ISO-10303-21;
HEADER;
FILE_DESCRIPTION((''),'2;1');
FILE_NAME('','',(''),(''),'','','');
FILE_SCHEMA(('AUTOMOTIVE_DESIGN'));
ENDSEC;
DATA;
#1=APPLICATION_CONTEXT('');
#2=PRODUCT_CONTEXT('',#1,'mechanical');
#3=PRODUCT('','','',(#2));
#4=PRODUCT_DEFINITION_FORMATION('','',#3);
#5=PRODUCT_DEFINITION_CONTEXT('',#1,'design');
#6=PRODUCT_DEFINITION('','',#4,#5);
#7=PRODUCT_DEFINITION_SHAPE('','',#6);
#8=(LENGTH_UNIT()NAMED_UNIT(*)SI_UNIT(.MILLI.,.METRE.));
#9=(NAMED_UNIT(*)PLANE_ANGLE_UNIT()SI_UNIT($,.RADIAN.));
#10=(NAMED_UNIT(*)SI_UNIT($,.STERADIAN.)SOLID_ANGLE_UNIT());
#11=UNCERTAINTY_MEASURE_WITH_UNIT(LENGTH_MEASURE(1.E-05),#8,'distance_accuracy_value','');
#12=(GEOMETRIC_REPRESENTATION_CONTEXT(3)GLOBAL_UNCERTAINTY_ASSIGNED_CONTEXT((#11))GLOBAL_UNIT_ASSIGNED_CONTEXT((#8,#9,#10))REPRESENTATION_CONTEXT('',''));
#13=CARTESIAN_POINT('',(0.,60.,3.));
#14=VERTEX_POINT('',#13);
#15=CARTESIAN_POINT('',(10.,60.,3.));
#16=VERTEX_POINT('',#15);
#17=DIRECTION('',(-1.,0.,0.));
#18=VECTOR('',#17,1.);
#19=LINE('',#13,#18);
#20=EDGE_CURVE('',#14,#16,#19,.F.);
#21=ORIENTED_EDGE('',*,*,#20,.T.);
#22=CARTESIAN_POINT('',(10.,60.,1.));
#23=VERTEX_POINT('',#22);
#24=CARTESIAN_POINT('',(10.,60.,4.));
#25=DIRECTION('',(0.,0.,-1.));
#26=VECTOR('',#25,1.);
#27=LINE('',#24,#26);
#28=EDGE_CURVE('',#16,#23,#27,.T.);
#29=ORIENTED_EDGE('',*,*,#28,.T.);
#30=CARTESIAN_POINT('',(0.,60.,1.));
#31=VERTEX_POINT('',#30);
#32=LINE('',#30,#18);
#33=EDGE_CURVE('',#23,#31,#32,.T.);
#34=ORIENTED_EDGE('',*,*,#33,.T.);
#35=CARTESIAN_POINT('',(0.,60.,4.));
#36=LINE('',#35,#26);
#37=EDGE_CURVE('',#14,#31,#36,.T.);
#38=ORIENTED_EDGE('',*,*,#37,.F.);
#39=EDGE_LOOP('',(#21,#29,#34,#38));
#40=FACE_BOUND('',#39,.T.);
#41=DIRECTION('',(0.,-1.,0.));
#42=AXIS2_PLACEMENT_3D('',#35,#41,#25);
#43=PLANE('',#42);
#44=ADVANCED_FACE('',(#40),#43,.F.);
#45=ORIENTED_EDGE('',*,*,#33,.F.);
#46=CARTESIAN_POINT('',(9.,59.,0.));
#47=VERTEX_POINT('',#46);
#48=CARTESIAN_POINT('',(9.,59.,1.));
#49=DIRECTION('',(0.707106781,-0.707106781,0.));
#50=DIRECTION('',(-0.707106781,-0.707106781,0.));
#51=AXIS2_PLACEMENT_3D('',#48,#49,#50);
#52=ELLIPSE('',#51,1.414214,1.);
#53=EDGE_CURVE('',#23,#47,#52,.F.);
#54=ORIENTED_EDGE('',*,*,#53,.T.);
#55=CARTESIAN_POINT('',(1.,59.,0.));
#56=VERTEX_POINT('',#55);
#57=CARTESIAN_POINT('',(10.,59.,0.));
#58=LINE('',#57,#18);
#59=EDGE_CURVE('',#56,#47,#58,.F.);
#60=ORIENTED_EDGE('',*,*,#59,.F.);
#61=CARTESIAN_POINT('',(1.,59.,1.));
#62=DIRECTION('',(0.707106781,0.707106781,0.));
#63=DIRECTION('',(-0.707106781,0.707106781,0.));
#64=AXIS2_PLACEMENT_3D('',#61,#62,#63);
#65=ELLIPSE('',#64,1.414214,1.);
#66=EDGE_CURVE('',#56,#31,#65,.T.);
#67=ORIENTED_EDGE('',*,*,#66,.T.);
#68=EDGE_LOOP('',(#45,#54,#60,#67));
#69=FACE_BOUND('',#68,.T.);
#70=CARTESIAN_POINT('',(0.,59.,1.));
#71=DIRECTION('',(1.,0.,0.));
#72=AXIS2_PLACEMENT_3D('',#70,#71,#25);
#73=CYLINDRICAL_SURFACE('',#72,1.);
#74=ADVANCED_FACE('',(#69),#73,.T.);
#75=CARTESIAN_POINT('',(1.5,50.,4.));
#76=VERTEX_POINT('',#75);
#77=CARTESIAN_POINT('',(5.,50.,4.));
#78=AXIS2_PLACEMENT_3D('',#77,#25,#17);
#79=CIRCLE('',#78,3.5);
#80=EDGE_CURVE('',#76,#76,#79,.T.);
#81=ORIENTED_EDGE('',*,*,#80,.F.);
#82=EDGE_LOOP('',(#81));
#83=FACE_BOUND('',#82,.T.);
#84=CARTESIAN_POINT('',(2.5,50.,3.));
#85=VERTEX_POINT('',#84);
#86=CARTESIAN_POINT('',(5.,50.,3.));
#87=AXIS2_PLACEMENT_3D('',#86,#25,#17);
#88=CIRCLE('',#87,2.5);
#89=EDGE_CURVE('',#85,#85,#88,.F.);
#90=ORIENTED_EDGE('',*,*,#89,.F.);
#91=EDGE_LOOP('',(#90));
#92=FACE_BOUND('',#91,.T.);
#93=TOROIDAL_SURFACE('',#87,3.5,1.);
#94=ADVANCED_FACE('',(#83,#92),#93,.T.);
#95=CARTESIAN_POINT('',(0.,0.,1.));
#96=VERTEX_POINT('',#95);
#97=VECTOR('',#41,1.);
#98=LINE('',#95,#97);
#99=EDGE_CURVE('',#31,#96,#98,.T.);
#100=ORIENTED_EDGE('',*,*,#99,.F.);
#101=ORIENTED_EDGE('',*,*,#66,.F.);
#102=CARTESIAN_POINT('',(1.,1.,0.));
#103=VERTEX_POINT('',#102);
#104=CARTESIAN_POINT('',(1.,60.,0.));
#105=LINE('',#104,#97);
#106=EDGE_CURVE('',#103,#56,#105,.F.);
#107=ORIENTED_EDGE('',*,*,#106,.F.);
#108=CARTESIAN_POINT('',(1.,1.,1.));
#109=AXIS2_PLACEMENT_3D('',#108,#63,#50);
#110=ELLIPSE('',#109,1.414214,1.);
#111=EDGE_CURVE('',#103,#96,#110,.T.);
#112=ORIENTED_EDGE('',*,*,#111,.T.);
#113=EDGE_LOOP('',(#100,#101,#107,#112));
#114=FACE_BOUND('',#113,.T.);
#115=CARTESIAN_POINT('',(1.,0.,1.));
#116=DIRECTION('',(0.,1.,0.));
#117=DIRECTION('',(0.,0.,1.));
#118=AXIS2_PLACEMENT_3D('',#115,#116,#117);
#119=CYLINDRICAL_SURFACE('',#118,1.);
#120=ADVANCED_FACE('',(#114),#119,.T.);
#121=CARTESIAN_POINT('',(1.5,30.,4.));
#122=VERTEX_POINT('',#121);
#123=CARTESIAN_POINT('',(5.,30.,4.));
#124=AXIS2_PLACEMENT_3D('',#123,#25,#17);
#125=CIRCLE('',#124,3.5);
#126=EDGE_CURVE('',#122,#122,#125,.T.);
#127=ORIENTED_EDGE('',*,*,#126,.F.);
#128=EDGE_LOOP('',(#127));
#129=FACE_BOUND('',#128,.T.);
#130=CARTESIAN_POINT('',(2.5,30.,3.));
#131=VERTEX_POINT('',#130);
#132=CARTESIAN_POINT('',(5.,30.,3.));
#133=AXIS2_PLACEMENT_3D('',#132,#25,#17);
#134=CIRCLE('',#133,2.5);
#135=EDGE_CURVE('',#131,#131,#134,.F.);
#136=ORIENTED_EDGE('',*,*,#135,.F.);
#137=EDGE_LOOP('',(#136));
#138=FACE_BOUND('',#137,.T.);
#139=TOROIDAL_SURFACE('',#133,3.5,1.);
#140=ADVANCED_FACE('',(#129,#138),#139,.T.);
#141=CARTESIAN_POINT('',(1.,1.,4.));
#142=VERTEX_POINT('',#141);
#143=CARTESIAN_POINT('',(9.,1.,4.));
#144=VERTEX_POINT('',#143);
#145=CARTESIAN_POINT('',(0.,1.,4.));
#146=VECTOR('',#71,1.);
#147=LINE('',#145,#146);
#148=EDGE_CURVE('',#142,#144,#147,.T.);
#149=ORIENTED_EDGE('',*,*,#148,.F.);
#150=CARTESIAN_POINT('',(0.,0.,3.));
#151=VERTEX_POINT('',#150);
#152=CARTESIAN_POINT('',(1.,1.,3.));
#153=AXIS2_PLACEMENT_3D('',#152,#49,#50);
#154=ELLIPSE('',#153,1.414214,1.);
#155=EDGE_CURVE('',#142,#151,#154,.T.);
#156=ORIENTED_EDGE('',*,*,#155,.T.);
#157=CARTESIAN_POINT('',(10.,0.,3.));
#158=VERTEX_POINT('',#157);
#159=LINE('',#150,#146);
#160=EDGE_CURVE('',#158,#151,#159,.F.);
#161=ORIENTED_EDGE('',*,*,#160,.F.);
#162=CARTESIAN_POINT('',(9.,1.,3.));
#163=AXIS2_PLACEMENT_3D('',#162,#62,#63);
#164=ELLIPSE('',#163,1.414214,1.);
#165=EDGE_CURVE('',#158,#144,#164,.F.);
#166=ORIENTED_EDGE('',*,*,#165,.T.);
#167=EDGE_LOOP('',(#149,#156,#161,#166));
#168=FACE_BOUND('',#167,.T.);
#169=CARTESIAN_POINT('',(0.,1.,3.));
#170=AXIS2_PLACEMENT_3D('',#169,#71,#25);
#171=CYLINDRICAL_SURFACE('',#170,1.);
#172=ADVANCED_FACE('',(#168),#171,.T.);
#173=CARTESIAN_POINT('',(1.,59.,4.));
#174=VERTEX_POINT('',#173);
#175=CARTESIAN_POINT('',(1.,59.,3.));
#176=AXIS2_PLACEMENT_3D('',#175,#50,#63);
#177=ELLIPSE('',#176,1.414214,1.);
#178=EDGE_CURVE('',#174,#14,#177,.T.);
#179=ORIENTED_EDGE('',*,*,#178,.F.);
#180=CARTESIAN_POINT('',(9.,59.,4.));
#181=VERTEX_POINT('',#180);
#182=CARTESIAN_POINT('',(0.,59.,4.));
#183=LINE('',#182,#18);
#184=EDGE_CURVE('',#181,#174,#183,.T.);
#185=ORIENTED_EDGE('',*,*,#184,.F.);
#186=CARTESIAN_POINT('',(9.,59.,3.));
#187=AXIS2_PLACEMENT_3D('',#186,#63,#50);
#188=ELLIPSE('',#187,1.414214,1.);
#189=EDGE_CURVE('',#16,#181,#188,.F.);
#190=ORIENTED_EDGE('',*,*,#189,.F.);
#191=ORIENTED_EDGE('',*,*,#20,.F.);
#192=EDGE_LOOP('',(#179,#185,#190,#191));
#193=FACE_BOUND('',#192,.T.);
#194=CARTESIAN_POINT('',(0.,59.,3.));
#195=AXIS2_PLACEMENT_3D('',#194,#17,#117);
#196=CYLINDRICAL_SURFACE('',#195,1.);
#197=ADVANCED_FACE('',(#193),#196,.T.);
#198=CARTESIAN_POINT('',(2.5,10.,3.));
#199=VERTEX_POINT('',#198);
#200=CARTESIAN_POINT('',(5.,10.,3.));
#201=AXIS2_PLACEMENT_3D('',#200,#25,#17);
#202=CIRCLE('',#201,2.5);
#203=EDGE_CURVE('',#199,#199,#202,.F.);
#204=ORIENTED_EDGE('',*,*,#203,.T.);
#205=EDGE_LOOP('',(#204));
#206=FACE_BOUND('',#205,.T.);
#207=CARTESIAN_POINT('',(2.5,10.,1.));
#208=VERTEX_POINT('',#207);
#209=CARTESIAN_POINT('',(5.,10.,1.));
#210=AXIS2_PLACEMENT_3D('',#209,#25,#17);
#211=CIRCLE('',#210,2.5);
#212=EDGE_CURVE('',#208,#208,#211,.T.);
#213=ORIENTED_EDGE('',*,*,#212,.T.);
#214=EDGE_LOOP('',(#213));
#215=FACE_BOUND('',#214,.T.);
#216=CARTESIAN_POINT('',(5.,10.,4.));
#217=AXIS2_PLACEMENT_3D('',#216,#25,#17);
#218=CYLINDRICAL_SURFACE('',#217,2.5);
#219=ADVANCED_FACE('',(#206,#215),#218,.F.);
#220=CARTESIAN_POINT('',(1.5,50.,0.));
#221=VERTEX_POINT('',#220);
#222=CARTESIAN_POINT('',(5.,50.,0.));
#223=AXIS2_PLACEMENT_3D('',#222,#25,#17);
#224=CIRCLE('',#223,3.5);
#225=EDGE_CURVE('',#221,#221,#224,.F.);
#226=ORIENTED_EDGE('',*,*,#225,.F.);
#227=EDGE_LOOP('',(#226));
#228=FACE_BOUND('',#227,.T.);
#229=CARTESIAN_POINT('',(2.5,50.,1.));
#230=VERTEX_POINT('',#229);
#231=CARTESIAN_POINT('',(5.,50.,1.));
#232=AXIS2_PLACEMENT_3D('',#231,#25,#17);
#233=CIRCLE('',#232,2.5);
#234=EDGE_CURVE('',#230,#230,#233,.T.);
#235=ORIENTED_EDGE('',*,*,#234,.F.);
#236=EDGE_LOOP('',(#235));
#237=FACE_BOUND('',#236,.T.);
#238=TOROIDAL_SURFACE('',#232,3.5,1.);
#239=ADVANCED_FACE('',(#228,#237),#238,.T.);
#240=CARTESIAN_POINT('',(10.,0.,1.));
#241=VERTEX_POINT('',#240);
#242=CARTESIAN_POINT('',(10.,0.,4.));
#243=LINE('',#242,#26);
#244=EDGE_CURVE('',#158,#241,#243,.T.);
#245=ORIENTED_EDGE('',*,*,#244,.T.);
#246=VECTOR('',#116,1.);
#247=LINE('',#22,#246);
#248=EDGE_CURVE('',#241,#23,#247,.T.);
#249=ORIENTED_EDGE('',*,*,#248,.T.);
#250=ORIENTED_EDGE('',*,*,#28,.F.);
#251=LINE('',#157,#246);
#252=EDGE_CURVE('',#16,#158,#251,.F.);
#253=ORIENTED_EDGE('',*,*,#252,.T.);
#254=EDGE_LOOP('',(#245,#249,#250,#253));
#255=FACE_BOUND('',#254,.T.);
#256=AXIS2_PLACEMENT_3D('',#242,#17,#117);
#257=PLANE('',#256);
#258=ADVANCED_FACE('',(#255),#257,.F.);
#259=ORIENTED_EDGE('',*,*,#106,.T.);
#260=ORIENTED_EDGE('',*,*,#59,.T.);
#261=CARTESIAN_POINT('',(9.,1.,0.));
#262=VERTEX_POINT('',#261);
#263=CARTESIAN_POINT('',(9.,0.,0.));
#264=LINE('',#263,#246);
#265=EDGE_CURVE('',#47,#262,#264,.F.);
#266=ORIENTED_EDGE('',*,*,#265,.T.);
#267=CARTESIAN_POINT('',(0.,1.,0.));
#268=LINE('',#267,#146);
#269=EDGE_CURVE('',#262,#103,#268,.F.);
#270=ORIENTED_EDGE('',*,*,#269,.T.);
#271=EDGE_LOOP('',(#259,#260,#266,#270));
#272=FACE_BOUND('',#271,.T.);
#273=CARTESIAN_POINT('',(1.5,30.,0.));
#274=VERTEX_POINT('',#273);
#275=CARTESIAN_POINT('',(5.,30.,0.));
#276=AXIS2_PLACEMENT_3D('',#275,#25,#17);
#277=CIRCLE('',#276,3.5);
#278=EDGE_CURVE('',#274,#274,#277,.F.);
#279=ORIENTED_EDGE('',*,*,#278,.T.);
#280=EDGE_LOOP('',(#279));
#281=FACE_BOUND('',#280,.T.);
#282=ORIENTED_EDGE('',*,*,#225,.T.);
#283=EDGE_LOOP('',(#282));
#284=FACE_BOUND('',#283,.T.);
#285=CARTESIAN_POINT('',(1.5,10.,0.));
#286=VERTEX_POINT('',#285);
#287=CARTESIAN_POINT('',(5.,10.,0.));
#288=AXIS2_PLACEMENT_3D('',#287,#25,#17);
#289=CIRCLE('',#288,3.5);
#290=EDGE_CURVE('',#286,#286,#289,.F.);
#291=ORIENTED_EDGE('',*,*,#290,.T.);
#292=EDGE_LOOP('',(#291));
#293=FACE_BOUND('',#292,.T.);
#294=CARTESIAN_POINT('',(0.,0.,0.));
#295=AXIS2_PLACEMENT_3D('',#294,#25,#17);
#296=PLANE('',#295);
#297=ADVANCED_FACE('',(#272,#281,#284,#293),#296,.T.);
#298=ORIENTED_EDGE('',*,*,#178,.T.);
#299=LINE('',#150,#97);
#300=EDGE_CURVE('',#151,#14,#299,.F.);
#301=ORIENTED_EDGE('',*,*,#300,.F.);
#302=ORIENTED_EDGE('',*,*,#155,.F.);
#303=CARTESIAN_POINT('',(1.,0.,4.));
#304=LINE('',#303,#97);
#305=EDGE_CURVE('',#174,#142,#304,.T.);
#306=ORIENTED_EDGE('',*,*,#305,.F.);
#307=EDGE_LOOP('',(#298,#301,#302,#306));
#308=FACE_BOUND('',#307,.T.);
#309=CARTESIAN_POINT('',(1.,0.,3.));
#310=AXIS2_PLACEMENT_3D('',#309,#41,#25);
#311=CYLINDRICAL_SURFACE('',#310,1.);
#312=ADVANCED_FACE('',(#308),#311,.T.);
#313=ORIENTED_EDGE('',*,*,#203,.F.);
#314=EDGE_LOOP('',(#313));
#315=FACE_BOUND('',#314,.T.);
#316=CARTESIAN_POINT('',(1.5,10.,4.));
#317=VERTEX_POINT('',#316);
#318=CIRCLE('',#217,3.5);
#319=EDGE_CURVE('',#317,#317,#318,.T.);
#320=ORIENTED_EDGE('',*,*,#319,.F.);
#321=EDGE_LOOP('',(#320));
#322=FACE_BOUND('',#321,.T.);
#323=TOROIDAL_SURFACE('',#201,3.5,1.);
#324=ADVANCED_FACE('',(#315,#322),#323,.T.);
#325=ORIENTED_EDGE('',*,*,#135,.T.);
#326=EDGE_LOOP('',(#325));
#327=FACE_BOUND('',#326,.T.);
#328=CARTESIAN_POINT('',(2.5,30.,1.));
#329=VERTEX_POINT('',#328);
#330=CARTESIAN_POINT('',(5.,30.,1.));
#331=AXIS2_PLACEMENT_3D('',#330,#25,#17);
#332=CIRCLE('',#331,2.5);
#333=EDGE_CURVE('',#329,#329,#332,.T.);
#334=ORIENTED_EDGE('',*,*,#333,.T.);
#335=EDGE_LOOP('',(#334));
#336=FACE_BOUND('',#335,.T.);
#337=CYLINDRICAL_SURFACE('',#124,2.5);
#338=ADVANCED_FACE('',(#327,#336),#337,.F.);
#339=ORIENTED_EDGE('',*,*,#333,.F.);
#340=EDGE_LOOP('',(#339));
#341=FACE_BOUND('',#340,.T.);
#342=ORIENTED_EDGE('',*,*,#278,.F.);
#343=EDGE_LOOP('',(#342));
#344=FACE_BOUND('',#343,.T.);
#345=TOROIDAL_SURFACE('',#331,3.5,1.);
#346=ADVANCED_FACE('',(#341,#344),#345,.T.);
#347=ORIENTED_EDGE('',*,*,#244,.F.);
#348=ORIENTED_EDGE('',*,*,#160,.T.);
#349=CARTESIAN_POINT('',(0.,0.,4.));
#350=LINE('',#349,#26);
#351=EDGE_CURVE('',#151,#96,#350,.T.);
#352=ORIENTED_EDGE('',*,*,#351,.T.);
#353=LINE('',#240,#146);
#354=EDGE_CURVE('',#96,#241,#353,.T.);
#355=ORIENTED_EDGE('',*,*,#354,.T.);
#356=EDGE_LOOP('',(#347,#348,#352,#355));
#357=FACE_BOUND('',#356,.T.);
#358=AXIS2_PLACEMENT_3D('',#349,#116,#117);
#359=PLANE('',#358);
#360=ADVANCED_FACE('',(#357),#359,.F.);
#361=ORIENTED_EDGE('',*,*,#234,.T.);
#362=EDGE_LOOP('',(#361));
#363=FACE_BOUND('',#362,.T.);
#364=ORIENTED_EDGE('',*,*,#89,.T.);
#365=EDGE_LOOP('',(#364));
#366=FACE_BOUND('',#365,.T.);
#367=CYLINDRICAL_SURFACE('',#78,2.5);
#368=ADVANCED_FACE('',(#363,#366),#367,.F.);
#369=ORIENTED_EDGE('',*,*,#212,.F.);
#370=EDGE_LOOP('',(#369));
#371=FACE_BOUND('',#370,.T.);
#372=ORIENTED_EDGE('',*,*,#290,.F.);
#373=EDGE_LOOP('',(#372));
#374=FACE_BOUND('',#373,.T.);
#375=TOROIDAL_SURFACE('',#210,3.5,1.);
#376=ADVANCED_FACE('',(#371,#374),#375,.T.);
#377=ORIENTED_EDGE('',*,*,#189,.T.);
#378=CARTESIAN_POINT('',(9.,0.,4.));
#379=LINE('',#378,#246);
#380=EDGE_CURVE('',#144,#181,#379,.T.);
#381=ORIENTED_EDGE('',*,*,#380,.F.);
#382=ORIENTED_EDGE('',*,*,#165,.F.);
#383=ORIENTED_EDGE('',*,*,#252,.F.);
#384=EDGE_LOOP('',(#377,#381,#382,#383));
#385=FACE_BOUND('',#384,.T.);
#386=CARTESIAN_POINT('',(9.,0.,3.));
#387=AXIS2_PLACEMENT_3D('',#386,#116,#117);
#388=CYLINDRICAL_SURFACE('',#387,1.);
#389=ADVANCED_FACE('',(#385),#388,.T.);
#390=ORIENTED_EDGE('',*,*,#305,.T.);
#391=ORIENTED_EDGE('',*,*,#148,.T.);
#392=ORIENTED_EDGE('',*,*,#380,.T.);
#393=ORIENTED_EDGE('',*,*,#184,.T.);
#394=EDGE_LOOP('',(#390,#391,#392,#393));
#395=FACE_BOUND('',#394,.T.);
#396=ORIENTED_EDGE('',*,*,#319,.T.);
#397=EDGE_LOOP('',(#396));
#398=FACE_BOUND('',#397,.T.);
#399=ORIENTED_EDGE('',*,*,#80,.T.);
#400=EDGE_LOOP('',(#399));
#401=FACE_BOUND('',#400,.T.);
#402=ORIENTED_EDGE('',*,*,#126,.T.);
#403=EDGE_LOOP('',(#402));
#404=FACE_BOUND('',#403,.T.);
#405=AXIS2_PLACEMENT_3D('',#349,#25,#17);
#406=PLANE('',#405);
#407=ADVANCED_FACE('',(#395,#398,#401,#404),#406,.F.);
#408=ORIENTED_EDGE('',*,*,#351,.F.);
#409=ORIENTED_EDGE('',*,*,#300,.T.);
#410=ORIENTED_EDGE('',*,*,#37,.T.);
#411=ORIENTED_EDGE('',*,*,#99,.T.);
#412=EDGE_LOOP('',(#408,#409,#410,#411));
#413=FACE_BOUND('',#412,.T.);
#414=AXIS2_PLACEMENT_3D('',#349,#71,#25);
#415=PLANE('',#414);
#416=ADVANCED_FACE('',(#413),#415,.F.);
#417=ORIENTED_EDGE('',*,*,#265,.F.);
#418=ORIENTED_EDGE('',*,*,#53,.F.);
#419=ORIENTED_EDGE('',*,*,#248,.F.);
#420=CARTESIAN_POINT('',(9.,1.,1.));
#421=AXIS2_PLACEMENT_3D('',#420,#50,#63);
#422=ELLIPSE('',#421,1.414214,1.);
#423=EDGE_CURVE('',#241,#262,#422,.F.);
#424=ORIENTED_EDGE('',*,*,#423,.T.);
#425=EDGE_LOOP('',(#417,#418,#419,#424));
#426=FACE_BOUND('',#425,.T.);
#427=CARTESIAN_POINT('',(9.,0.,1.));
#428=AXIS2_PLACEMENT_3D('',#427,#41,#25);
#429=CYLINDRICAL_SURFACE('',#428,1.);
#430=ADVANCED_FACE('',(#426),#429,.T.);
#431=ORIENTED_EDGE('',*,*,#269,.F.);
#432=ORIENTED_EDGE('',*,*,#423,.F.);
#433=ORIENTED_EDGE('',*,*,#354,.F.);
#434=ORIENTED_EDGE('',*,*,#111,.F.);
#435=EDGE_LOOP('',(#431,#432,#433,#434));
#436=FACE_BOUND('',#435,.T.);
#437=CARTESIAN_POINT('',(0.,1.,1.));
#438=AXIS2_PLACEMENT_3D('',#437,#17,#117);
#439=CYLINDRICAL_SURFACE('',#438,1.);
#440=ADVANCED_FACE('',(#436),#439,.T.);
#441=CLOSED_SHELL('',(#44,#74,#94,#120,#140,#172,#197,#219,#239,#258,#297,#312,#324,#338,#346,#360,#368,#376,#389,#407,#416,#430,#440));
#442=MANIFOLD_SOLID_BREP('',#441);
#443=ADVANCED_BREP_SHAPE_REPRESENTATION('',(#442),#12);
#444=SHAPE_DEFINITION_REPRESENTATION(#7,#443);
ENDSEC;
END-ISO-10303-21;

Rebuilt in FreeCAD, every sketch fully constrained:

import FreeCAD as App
import Part
import Sketcher

V = App.Vector


def edges_at(feature, points):
    """Names of the edges that pass closest to the given points."""
    edges = feature.Shape.Edges
    near = lambda p: min(range(len(edges)), key=lambda i: edges[i].distToShape(Part.Vertex(*p))[0])
    return sorted({f"Edge{near(p) + 1}" for p in points})

doc = App.newDocument("Part")
params = doc.addObject("Spreadsheet::Sheet", "Params")
for row, (alias, value) in enumerate([
    ("sketch1_diameter", "5 mm"),
    ("sketch1_width", "10 mm"),
    ("sketch1_height", "60 mm"),
    ("pad1_length", "4 mm"),
    ("fillet_radius", "1 mm"),
    ("fillet2_radius", "1 mm"),
], start=1):
    params.set(f"A{row}", alias)
    params.set(f"B{row}", "=" + value)
    params.setAlias(f"B{row}", alias)

body = doc.addObject("PartDesign::Body", "Body")

sketch1 = body.newObject("Sketcher::SketchObject", "Sketch")
sketch1.AttachmentSupport = (doc.getObject("XY_Plane"), [""])
sketch1.MapMode = "FlatFace"
sketch1.addGeometry(Part.LineSegment(V(0, 60, 0), V(0, 0, 0)), False)
sketch1.addGeometry(Part.LineSegment(V(0, 0, 0), V(10, 0, 0)), False)
sketch1.addGeometry(Part.LineSegment(V(10, 0, 0), V(10, 60, 0)), False)
sketch1.addGeometry(Part.LineSegment(V(10, 60, 0), V(0, 60, 0)), False)
sketch1.addGeometry(Part.Circle(V(5, 10, 0), V(0, 0, 1), 2.5), False)
sketch1.addGeometry(Part.Circle(V(5, 30, 0), V(0, 0, 1), 2.5), False)
sketch1.addGeometry(Part.Circle(V(5, 50, 0), V(0, 0, 1), 2.5), False)
sketch1.addConstraint(Sketcher.Constraint("Coincident", 0, 2, 1, 1))
sketch1.addConstraint(Sketcher.Constraint("Coincident", 1, 2, 2, 1))
sketch1.addConstraint(Sketcher.Constraint("Coincident", 2, 2, 3, 1))
sketch1.addConstraint(Sketcher.Constraint("Coincident", 3, 2, 0, 1))
sketch1.addConstraint(Sketcher.Constraint("Vertical", 0))
sketch1.addConstraint(Sketcher.Constraint("Horizontal", 1))
sketch1.addConstraint(Sketcher.Constraint("Vertical", 2))
sketch1.addConstraint(Sketcher.Constraint("Horizontal", 3))
sketch1.addConstraint(Sketcher.Constraint("Coincident", 0, 2, -1, 1))
sketch1.addConstraint(Sketcher.Constraint("Equal", 4, 5))
sketch1.addConstraint(Sketcher.Constraint("Equal", 5, 6))
sketch1.addConstraint(Sketcher.Constraint("Vertical", 4, 3, 5, 3))
sketch1.addConstraint(Sketcher.Constraint("Vertical", 5, 3, 6, 3))
sketch1.addConstraint(Sketcher.Constraint("Diameter", 4, 5.0))
sketch1.addConstraint(Sketcher.Constraint("DistanceX", 1, 1, 1, 2, 10.0))
sketch1.addConstraint(Sketcher.Constraint("DistanceY", 0, 2, 0, 1, 60.0))
sketch1.addConstraint(Sketcher.Constraint("DistanceX", -1, 1, 4, 3, 5.0))
sketch1.addConstraint(Sketcher.Constraint("DistanceY", -1, 1, 4, 3, 10.0))
sketch1.addConstraint(Sketcher.Constraint("DistanceY", -1, 1, 5, 3, 30.0))
sketch1.addConstraint(Sketcher.Constraint("DistanceY", -1, 1, 6, 3, 50.0))
sketch1.setExpression("Constraints[13]", "Params.sketch1_diameter")
sketch1.setExpression("Constraints[14]", "Params.sketch1_width")
sketch1.setExpression("Constraints[15]", "Params.sketch1_height")
pad1 = body.newObject("PartDesign::Pad", "Pad")
pad1.Profile = sketch1
pad1.setExpression("Length", "Params.pad1_length")
doc.recompute()

fillet = body.newObject("PartDesign::Fillet", "Fillet")
fillet.Base = (pad1, edges_at(pad1, [
    (2.5, 30, 4),
    (10, 30, 4),
    (2.5, 50, 0),
    (2.5, 50, 4),
    (5, 60, 4),
    (2.5, 10, 0),
    (2.5, 10, 4),
    (0, 30, 4),
    (5, 60, 0),
    (10, 30, 0),
    (5, 0, 0),
    (0, 30, 0),
    (5, 0, 4),
]))
fillet.setExpression("Radius", "Params.fillet_radius")
doc.recompute()

fillet2 = body.newObject("PartDesign::Fillet", "Fillet001")
fillet2.Base = (fillet, edges_at(fillet, [(2.5, 30, 0)]))
fillet2.setExpression("Radius", "Params.fillet2_radius")

doc.recompute()
